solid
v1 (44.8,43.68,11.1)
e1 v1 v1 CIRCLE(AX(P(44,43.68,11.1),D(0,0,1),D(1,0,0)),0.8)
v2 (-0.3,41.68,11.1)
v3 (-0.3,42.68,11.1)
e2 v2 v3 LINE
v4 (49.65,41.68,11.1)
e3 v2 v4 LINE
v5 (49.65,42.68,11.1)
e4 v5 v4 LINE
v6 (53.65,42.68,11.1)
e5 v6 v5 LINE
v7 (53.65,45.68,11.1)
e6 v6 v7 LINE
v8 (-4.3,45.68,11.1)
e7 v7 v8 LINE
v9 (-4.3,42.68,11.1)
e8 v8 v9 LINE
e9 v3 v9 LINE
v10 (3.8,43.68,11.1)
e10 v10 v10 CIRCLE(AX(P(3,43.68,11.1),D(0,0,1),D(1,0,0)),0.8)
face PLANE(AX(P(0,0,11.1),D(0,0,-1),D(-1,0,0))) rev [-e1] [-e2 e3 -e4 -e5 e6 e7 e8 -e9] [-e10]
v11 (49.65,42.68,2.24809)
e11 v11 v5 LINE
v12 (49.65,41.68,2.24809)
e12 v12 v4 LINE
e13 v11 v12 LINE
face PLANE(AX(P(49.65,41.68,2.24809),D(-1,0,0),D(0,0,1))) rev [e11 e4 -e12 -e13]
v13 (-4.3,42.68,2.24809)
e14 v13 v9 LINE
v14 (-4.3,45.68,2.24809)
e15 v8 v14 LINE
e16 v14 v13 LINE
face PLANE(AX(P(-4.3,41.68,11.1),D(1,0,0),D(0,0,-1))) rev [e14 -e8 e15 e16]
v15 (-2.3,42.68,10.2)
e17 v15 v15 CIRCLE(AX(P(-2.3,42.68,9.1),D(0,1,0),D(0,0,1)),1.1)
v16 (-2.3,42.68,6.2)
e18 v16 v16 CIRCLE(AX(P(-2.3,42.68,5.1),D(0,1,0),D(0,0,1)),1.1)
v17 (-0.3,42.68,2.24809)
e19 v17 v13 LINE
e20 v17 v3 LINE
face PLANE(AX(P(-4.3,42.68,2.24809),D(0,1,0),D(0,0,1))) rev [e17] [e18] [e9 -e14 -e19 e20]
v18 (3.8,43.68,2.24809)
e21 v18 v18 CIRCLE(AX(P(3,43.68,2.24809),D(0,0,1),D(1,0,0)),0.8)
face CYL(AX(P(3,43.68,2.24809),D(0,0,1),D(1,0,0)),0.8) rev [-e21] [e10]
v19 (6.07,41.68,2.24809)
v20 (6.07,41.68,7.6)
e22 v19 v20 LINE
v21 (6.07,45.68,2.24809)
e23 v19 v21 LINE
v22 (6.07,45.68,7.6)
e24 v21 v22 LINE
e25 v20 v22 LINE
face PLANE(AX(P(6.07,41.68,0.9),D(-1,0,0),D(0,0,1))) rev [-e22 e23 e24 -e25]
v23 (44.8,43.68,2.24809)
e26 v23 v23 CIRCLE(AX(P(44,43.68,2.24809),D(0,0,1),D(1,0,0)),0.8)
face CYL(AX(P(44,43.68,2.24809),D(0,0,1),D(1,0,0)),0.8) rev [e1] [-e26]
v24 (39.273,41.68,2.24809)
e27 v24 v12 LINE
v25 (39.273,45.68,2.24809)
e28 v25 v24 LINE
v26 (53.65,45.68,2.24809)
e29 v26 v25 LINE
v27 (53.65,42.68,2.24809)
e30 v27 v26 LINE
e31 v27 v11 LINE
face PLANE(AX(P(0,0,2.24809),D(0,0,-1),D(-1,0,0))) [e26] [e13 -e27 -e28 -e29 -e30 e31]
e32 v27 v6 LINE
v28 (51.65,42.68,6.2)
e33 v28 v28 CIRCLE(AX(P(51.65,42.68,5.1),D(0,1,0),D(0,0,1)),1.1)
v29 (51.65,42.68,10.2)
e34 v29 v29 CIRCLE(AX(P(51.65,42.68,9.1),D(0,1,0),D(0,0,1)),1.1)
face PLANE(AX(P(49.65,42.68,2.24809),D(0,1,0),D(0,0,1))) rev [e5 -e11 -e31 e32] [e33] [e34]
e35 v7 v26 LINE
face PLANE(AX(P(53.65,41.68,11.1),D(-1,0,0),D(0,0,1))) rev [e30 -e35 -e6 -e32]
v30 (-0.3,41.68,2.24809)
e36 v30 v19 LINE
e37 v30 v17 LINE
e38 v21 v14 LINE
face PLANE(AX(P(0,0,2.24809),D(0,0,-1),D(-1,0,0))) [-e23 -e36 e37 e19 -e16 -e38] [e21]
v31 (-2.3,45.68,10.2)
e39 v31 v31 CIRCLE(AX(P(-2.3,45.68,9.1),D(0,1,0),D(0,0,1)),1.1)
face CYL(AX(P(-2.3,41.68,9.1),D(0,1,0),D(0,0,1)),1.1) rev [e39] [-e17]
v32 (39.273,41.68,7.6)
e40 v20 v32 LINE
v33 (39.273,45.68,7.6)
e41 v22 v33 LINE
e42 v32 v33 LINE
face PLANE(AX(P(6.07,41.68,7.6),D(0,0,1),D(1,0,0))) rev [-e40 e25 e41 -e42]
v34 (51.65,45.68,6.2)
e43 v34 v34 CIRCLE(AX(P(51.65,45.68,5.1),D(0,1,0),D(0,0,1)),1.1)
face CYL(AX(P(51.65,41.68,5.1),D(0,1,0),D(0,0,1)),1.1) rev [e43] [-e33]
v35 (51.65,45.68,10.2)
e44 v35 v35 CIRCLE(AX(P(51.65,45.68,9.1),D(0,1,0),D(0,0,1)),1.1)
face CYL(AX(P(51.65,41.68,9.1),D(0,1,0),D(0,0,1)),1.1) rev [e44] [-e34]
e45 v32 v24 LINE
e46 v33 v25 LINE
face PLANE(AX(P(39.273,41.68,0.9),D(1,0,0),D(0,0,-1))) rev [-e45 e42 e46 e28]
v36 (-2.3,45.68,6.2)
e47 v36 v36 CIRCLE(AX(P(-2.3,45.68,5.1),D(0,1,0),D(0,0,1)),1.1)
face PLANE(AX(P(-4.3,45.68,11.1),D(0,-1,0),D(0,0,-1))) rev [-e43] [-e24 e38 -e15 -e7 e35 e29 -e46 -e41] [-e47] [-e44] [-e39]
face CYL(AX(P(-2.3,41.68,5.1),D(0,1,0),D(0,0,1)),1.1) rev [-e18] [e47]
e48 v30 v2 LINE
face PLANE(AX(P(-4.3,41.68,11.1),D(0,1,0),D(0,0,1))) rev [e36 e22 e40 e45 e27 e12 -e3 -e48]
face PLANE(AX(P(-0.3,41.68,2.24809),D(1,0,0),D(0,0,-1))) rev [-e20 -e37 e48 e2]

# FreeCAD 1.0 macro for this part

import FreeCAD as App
import Part
import Sketcher

V = App.Vector
Q = App.Units.Quantity

doc = App.newDocument("Part")
body = doc.addObject("PartDesign::Body", "Body")

sketch1 = body.newObject("Sketcher::SketchObject", "Sketch")
sketch1.AttachmentSupport = (doc.getObject("XY_Plane"), [""])
sketch1.MapMode = "FlatFace"
sketch1.AttachmentOffset = App.Placement(V(0, 0, 2.24809), App.Rotation())
sketch1.addGeometry([
    Part.LineSegment(V(-4.3, 45.68, 0), V(-4.3, 41.68, 0)),
    Part.LineSegment(V(-4.3, 41.68, 0), V(53.65, 41.68, 0)),
    Part.LineSegment(V(53.65, 41.68, 0), V(53.65, 45.68, 0)),
    Part.LineSegment(V(53.65, 45.68, 0), V(-4.3, 45.68, 0)),
], False)
sketch1.addConstraint([
    Sketcher.Constraint("Coincident", 0, 2, 1, 1),
    Sketcher.Constraint("Coincident", 1, 2, 2, 1),
    Sketcher.Constraint("Coincident", 2, 2, 3, 1),
    Sketcher.Constraint("Coincident", 3, 2, 0, 1),
    Sketcher.Constraint("Vertical", 0),
    Sketcher.Constraint("Horizontal", 1),
    Sketcher.Constraint("Vertical", 2),
    Sketcher.Constraint("Horizontal", 3),
    Sketcher.Constraint("DistanceY", 0, 2, 0, 1, Q("4 mm")),
    Sketcher.Constraint("DistanceX", 1, 1, 1, 2, Q("57.95 mm")),
    Sketcher.Constraint("DistanceX", 0, 2, -1, 1, Q("4.3 mm")),
    Sketcher.Constraint("DistanceY", -1, 1, 0, 2, Q("41.68 mm")),
])
pad1 = body.newObject("PartDesign::Pad", "Pad")
pad1.Profile = sketch1
pad1.Length = 8.85191

sketch2 = body.newObject("Sketcher::SketchObject", "Sketch001")
sketch2.AttachmentSupport = (doc.getObject("XY_Plane"), [""])
sketch2.MapMode = "FlatFace"
sketch2.AttachmentOffset = App.Placement(V(0, 0, 11.1), App.Rotation())
sketch2.addGeometry([
    Part.LineSegment(V(-4.3, 42.68, 0), V(-4.3, 41.68, 0)),
    Part.LineSegment(V(-4.3, 41.68, 0), V(-0.3, 41.68, 0)),
    Part.LineSegment(V(-0.3, 41.68, 0), V(-0.3, 42.68, 0)),
    Part.LineSegment(V(-0.3, 42.68, 0), V(-4.3, 42.68, 0)),
], False)
sketch2.addConstraint([
    Sketcher.Constraint("Coincident", 0, 2, 1, 1),
    Sketcher.Constraint("Coincident", 1, 2, 2, 1),
    Sketcher.Constraint("Coincident", 2, 2, 3, 1),
    Sketcher.Constraint("Coincident", 3, 2, 0, 1),
    Sketcher.Constraint("Vertical", 0),
    Sketcher.Constraint("Horizontal", 1),
    Sketcher.Constraint("Vertical", 2),
    Sketcher.Constraint("Horizontal", 3),
    Sketcher.Constraint("DistanceX", 1, 1, 1, 2, Q("4 mm")),
    Sketcher.Constraint("DistanceY", 0, 2, 0, 1, Q("1 mm")),
    Sketcher.Constraint("DistanceX", 0, 2, -1, 1, Q("4.3 mm")),
    Sketcher.Constraint("DistanceY", -1, 1, 0, 2, Q("41.68 mm")),
])
pocket1 = body.newObject("PartDesign::Pocket", "Pocket")
pocket1.Profile = sketch2
pocket1.Length = 8.85191

sketch3 = body.newObject("Sketcher::SketchObject", "Sketch002")
sketch3.AttachmentSupport = (doc.getObject("XY_Plane"), [""])
sketch3.MapMode = "FlatFace"
sketch3.AttachmentOffset = App.Placement(V(0, 0, 11.1), App.Rotation())
sketch3.addGeometry([
    Part.LineSegment(V(49.65, 42.68, 0), V(49.65, 41.68, 0)),
    Part.LineSegment(V(49.65, 41.68, 0), V(53.65, 41.68, 0)),
    Part.LineSegment(V(53.65, 41.68, 0), V(53.65, 42.68, 0)),
    Part.LineSegment(V(53.65, 42.68, 0), V(49.65, 42.68, 0)),
], False)
sketch3.addConstraint([
    Sketcher.Constraint("Coincident", 0, 2, 1, 1),
    Sketcher.Constraint("Coincident", 1, 2, 2, 1),
    Sketcher.Constraint("Coincident", 2, 2, 3, 1),
    Sketcher.Constraint("Coincident", 3, 2, 0, 1),
    Sketcher.Constraint("Vertical", 0),
    Sketcher.Constraint("Horizontal", 1),
    Sketcher.Constraint("Vertical", 2),
    Sketcher.Constraint("Horizontal", 3),
    Sketcher.Constraint("DistanceX", 1, 1, 1, 2, Q("4 mm")),
    Sketcher.Constraint("DistanceY", 0, 2, 0, 1, Q("1 mm")),
    Sketcher.Constraint("DistanceX", -1, 1, 0, 2, Q("49.65 mm")),
    Sketcher.Constraint("DistanceY", -1, 1, 0, 2, Q("41.68 mm")),
])
pocket2 = body.newObject("PartDesign::Pocket", "Pocket001")
pocket2.Profile = sketch3
pocket2.Length = 8.85191

sketch4 = body.newObject("Sketcher::SketchObject", "Sketch003")
sketch4.AttachmentSupport = (doc.getObject("XY_Plane"), [""])
sketch4.MapMode = "FlatFace"
sketch4.AttachmentOffset = App.Placement(V(0, 0, 11.1), App.Rotation())
sketch4.addGeometry([
    Part.Circle(V(3, 43.68, 0), V(0, 0, 1), 0.8),
    Part.Circle(V(44, 43.68, 0), V(0, 0, 1), 0.8),
], False)
sketch4.addConstraint([
    Sketcher.Constraint("Equal", 0, 1),
    Sketcher.Constraint("Horizontal", 0, 3, 1, 3),
    Sketcher.Constraint("Diameter", 0, Q("1.6 mm")),
    Sketcher.Constraint("DistanceX", -1, 1, 0, 3, Q("3 mm")),
    Sketcher.Constraint("DistanceX", -1, 1, 1, 3, Q("44 mm")),
    Sketcher.Constraint("DistanceY", -1, 1, 0, 3, Q("43.68 mm")),
])
pocket3 = body.newObject("PartDesign::Pocket", "Pocket002")
pocket3.Profile = sketch4
pocket3.Type = "ThroughAll"

sketch5 = body.newObject("Sketcher::SketchObject", "Sketch004")
sketch5.AttachmentSupport = (doc.getObject("XZ_Plane"), [""])
sketch5.MapMode = "FlatFace"
sketch5.AttachmentOffset = App.Placement(V(0, 0, -45.68), App.Rotation())
sketch5.addGeometry([
    Part.LineSegment(V(6.07, 0.9, 0), V(6.07, 7.6, 0)),
    Part.LineSegment(V(6.07, 7.6, 0), V(39.273, 7.6, 0)),
    Part.LineSegment(V(39.273, 7.6, 0), V(39.273, 0.9, 0)),
    Part.LineSegment(V(39.273, 0.9, 0), V(6.07, 0.9, 0)),
], False)
sketch5.addConstraint([
    Sketcher.Constraint("Coincident", 0, 2, 1, 1),
    Sketcher.Constraint("Coincident", 1, 2, 2, 1),
    Sketcher.Constraint("Coincident", 2, 2, 3, 1),
    Sketcher.Constraint("Coincident", 3, 2, 0, 1),
    Sketcher.Constraint("Vertical", 0),
    Sketcher.Constraint("Horizontal", 1),
    Sketcher.Constraint("Vertical", 2),
    Sketcher.Constraint("Horizontal", 3),
    Sketcher.Constraint("DistanceY", 0, 1, 0, 2, Q("6.7 mm")),
    Sketcher.Constraint("DistanceY", -1, 1, 0, 2, Q("7.6 mm")),
    Sketcher.Constraint("DistanceX", 1, 1, 1, 2, Q("33.203 mm")),
    Sketcher.Constraint("DistanceX", -1, 1, 0, 2, Q("6.07 mm")),
])
pocket4 = body.newObject("PartDesign::Pocket", "Pocket003")
pocket4.Profile = sketch5
pocket4.Length = 4
pocket4.Reversed = True

sketch6 = body.newObject("Sketcher::SketchObject", "Sketch005")
sketch6.AttachmentSupport = (doc.getObject("XZ_Plane"), [""])
sketch6.MapMode = "FlatFace"
sketch6.AttachmentOffset = App.Placement(V(0, 0, -45.68), App.Rotation())
sketch6.addGeometry([
    Part.Circle(V(-2.3, 5.1, 0), V(0, 0, 1), 1.1),
    Part.Circle(V(-2.3, 9.1, 0), V(0, 0, 1), 1.1),
    Part.Circle(V(51.65, 5.1, 0), V(0, 0, 1), 1.1),
    Part.Circle(V(51.65, 9.1, 0), V(0, 0, 1), 1.1),
], False)
sketch6.addConstraint([
    Sketcher.Constraint("Equal", 0, 1),
    Sketcher.Constraint("Equal", 1, 2),
    Sketcher.Constraint("Equal", 2, 3),
    Sketcher.Constraint("Horizontal", 0, 3, 2, 3),
    Sketcher.Constraint("Horizontal", 1, 3, 3, 3),
    Sketcher.Constraint("Vertical", 0, 3, 1, 3),
    Sketcher.Constraint("Vertical", 2, 3, 3, 3),
    Sketcher.Constraint("Diameter", 0, Q("2.2 mm")),
    Sketcher.Constraint("DistanceY", 0, 3, 1, 3, Q("4 mm")),
    Sketcher.Constraint("DistanceX", 0, 3, -1, 1, Q("2.3 mm")),
    Sketcher.Constraint("DistanceY", -1, 1, 0, 3, Q("5.1 mm")),
    Sketcher.Constraint("DistanceX", -1, 1, 2, 3, Q("51.65 mm")),
])
pocket5 = body.newObject("PartDesign::Pocket", "Pocket004")
pocket5.Profile = sketch6
pocket5.Type = "ThroughAll"
pocket5.Reversed = True

doc.recompute()
